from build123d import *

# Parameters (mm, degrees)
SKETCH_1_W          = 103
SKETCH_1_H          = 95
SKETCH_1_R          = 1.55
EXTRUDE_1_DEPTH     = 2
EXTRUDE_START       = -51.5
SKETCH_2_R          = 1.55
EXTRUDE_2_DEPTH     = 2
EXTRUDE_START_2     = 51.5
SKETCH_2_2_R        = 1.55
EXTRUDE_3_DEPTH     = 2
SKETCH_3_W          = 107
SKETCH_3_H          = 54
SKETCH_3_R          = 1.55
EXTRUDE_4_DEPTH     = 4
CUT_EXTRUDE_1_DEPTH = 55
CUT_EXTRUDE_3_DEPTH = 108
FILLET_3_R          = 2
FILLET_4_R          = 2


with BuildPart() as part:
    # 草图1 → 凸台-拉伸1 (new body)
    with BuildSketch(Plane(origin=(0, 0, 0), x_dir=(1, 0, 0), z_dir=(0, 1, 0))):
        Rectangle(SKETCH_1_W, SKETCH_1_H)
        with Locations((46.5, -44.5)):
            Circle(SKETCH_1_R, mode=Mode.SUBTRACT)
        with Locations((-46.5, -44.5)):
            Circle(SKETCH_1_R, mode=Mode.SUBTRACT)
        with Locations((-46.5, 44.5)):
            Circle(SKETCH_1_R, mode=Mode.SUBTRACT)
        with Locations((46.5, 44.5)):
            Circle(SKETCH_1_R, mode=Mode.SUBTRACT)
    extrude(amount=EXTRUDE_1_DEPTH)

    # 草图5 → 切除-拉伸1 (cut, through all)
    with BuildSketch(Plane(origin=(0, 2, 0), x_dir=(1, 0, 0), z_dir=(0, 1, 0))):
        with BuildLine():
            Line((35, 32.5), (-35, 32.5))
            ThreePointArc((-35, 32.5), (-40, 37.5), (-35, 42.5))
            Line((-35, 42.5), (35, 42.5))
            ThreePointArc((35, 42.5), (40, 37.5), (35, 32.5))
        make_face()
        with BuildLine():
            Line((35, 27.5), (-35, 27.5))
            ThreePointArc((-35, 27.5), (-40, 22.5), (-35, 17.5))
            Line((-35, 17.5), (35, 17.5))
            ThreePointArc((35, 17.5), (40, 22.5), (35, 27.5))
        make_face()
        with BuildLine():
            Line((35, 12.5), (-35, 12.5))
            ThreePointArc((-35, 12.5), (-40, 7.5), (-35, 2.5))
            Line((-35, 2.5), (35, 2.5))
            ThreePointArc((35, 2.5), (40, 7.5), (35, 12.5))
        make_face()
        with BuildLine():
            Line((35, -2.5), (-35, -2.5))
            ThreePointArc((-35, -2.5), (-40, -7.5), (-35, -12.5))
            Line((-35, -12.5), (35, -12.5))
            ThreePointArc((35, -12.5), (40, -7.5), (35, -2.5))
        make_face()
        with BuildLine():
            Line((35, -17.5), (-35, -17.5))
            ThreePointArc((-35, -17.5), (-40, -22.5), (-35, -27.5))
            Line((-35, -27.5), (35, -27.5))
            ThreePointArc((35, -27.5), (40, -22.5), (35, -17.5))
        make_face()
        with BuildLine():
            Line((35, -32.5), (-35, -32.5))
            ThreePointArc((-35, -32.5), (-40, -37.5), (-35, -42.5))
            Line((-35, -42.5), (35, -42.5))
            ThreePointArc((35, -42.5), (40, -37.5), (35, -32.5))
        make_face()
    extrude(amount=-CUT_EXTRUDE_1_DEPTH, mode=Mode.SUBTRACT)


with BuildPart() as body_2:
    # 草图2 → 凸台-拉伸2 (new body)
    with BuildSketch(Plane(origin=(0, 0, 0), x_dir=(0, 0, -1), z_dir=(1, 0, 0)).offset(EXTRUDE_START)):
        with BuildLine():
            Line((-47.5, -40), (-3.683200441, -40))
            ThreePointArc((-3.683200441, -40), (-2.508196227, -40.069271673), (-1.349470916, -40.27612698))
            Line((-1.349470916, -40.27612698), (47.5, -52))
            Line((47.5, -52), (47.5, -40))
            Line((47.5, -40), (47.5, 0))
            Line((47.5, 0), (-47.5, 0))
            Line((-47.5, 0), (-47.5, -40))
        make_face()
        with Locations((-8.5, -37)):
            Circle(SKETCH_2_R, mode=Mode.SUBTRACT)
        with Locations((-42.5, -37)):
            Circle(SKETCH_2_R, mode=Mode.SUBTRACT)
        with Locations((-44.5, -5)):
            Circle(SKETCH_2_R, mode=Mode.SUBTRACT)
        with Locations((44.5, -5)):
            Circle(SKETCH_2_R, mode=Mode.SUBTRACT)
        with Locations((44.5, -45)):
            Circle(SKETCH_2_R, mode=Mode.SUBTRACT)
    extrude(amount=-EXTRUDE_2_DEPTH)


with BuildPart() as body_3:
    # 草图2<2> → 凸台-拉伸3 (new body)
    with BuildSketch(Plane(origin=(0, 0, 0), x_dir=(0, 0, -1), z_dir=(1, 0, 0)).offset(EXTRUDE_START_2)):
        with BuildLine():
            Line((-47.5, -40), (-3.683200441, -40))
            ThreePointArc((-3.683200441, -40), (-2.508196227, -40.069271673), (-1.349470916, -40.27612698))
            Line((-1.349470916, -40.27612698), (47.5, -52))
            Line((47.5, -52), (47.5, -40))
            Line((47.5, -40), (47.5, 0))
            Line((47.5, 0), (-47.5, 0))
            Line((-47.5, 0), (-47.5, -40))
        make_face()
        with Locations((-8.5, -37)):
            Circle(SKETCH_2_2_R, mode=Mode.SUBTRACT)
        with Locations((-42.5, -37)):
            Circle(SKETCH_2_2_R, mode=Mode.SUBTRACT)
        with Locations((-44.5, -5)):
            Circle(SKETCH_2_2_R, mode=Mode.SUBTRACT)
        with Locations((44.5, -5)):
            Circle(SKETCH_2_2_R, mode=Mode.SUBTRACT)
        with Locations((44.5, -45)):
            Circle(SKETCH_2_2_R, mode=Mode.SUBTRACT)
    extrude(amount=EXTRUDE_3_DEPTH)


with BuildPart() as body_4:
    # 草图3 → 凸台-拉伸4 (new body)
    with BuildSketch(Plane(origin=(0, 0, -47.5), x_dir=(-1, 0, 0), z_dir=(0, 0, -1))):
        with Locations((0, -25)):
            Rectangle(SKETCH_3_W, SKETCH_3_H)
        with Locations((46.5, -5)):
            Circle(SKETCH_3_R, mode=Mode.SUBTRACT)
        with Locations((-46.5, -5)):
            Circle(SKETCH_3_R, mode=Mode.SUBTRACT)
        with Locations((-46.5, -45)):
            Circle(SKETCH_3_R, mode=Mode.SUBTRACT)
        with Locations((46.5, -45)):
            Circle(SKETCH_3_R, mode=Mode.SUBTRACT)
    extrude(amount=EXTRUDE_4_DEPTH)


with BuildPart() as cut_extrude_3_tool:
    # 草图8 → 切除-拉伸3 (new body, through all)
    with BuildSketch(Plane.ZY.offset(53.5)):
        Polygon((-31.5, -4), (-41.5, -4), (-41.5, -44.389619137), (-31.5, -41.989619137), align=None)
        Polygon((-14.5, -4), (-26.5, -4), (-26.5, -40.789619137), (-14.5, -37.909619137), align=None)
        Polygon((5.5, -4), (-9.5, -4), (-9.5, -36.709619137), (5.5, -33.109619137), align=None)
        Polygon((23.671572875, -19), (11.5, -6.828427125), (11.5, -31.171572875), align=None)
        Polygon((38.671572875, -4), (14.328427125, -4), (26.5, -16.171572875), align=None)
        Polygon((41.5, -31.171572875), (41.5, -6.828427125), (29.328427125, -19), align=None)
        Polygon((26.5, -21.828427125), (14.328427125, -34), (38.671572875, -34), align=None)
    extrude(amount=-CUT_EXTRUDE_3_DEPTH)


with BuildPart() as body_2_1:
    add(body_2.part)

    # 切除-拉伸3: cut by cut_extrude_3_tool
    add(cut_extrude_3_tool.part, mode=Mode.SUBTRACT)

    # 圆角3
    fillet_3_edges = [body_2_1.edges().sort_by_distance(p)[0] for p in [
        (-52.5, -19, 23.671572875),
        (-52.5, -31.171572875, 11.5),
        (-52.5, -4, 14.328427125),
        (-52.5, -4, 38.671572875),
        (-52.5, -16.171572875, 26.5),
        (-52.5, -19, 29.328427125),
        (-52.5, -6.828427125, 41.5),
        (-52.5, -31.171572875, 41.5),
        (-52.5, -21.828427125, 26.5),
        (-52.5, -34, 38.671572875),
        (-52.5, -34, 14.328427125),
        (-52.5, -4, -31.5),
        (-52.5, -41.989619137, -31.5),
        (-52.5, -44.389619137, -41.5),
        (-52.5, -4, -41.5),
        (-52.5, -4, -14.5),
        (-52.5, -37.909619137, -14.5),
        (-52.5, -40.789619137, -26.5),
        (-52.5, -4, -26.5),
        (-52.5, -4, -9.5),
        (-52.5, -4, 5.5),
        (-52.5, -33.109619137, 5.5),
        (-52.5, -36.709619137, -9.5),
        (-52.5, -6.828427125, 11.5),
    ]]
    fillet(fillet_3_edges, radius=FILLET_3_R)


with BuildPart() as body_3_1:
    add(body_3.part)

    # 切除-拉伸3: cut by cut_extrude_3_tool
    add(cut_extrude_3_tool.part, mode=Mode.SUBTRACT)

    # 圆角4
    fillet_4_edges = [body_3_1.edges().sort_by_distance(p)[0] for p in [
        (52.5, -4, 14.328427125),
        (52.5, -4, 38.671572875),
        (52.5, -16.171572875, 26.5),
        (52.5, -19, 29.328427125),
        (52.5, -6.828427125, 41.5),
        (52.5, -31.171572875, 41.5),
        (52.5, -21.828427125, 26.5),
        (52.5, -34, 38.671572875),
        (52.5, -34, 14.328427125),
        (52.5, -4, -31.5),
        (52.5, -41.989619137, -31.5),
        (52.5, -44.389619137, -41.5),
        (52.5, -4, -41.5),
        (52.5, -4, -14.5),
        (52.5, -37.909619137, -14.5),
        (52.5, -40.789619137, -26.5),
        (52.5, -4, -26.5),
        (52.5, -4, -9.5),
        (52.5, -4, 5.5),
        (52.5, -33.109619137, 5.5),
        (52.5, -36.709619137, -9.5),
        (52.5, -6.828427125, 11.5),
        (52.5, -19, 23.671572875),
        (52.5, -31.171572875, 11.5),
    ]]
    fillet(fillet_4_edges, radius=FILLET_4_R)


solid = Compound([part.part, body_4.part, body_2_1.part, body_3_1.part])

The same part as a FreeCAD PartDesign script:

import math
import FreeCAD as App
import Part
import Sketcher


def edges_at(feature, points):
    """Names of the edges that pass closest to the given points."""
    edges = feature.Shape.Edges
    near = lambda p: min(range(len(edges)), key=lambda i: edges[i].distToShape(Part.Vertex(*p))[0])
    return sorted({f"Edge{near(p) + 1}" for p in points})

doc = App.newDocument("Part")
body = doc.addObject("PartDesign::Body", "Body")

sketch1 = body.newObject("Sketcher::SketchObject", "Sketch")
sketch1.AttachmentSupport = (doc.getObject("XZ_Plane"), [""])
sketch1.MapMode = "FlatFace"
sketch1.addGeometry(Part.LineSegment(App.Vector(-51.5, -47.5, 0), App.Vector(-51.5, 47.5, 0)), False)
sketch1.addGeometry(Part.LineSegment(App.Vector(-51.5, 47.5, 0), App.Vector(51.5, 47.5, 0)), False)
sketch1.addGeometry(Part.LineSegment(App.Vector(51.5, 47.5, 0), App.Vector(51.5, -47.5, 0)), False)
sketch1.addGeometry(Part.LineSegment(App.Vector(51.5, -47.5, 0), App.Vector(-51.5, -47.5, 0)), False)
sketch1.addGeometry(Part.Circle(App.Vector(-46.5, 44.5, 0), App.Vector(0, 0, 1), 1.6), False)
sketch1.addGeometry(Part.Circle(App.Vector(46.5, 44.5, 0), App.Vector(0, 0, 1), 1.6), False)
sketch1.addGeometry(Part.Circle(App.Vector(-46.5, -44.5, 0), App.Vector(0, 0, 1), 1.6), False)
sketch1.addGeometry(Part.Circle(App.Vector(46.5, -44.5, 0), App.Vector(0, 0, 1), 1.6), False)
sketch1.addConstraint(Sketcher.Constraint("Coincident", 0, 2, 1, 1))
sketch1.addConstraint(Sketcher.Constraint("Coincident", 1, 2, 2, 1))
sketch1.addConstraint(Sketcher.Constraint("Coincident", 2, 2, 3, 1))
sketch1.addConstraint(Sketcher.Constraint("Coincident", 3, 2, 0, 1))
sketch1.addConstraint(Sketcher.Constraint("Vertical", 0))
sketch1.addConstraint(Sketcher.Constraint("Horizontal", 1))
sketch1.addConstraint(Sketcher.Constraint("Vertical", 2))
sketch1.addConstraint(Sketcher.Constraint("Horizontal", 3))
sketch1.addConstraint(Sketcher.Constraint("Equal", 4, 5))
sketch1.addConstraint(Sketcher.Constraint("Equal", 5, 6))
sketch1.addConstraint(Sketcher.Constraint("Equal", 6, 7))
sketch1.addConstraint(Sketcher.Constraint("Symmetric", 5, 3, 6, 3, -1, 1))
sketch1.addConstraint(Sketcher.Constraint("Symmetric", 4, 3, 7, 3, -1, 1))
sketch1.addConstraint(Sketcher.Constraint("Symmetric", 0, 2, 2, 2, -1, 1))
sketch1.addConstraint(Sketcher.Constraint("Symmetric", 4, 3, 5, 3, -2))
sketch1.addConstraint(Sketcher.Constraint("Diameter", 4, 3.1))
sketch1.addConstraint(Sketcher.Constraint("DistanceX", 1, 1, 1, 2, 103.0))
sketch1.addConstraint(Sketcher.Constraint("DistanceY", 0, 1, 0, 2, 95.0))
sketch1.addConstraint(Sketcher.Constraint("DistanceX", 4, 3, 5, 3, 93.0))
sketch1.addConstraint(Sketcher.Constraint("DistanceY", 6, 3, 4, 3, 89.0))
pad1 = body.newObject("PartDesign::Pad", "Pad")
pad1.Profile = sketch1
pad1.Length = 2
pad1.Reversed = True

sketch2 = body.newObject("Sketcher::SketchObject", "Sketch001")
sketch2.AttachmentSupport = (doc.getObject("XZ_Plane"), [""])
sketch2.MapMode = "FlatFace"
sketch2.AttachmentOffset = App.Placement(App.Vector(0, 0, -2), App.Rotation())
sketch2.addGeometry(Part.LineSegment(App.Vector(-35, -32, 0), App.Vector(35, -32, 0)), False)
sketch2.addGeometry(Part.ArcOfCircle(Part.Circle(App.Vector(35, -38, 0), App.Vector(0, 0, 1), 5), math.radians(-90), math.radians(90)), False)
sketch2.addGeometry(Part.LineSegment(App.Vector(35, -42, 0), App.Vector(-35, -42, 0)), False)
sketch2.addGeometry(Part.ArcOfCircle(Part.Circle(App.Vector(-35, -38, 0), App.Vector(0, 0, 1), 5), math.radians(90), math.radians(270)), False)
sketch2.addGeometry(Part.LineSegment(App.Vector(35, -28, 0), App.Vector(-35, -28, 0)), False)
sketch2.addGeometry(Part.ArcOfCircle(Part.Circle(App.Vector(-35, -22, 0), App.Vector(0, 0, 1), 5), math.radians(90), math.radians(270)), False)
sketch2.addGeometry(Part.LineSegment(App.Vector(-35, -18, 0), App.Vector(35, -18, 0)), False)
sketch2.addGeometry(Part.ArcOfCircle(Part.Circle(App.Vector(35, -22, 0), App.Vector(0, 0, 1), 5), math.radians(-90), math.radians(90)), False)
sketch2.addGeometry(Part.LineSegment(App.Vector(35, -12, 0), App.Vector(-35, -12, 0)), False)
sketch2.addGeometry(Part.ArcOfCircle(Part.Circle(App.Vector(-35, -8, 0), App.Vector(0, 0, 1), 5), math.radians(90), math.radians(270)), False)
sketch2.addGeometry(Part.LineSegment(App.Vector(-35, -2, 0), App.Vector(35, -2, 0)), False)
sketch2.addGeometry(Part.ArcOfCircle(Part.Circle(App.Vector(35, -8, 0), App.Vector(0, 0, 1), 5), math.radians(-90), math.radians(90)), False)
sketch2.addGeometry(Part.LineSegment(App.Vector(35, 2, 0), App.Vector(-35, 2, 0)), False)
sketch2.addGeometry(Part.ArcOfCircle(Part.Circle(App.Vector(-35, 8, 0), App.Vector(0, 0, 1), 5), math.radians(90), math.radians(270)), False)
sketch2.addGeometry(Part.LineSegment(App.Vector(-35, 12, 0), App.Vector(35, 12, 0)), False)
sketch2.addGeometry(Part.ArcOfCircle(Part.Circle(App.Vector(35, 8, 0), App.Vector(0, 0, 1), 5), math.radians(-90), math.radians(90)), False)
sketch2.addGeometry(Part.LineSegment(App.Vector(35, 18, 0), App.Vector(-35, 18, 0)), False)
sketch2.addGeometry(Part.ArcOfCircle(Part.Circle(App.Vector(-35, 22, 0), App.Vector(0, 0, 1), 5), math.radians(90), math.radians(270)), False)
sketch2.addGeometry(Part.LineSegment(App.Vector(-35, 28, 0), App.Vector(35, 28, 0)), False)
sketch2.addGeometry(Part.ArcOfCircle(Part.Circle(App.Vector(35, 22, 0), App.Vector(0, 0, 1), 5), math.radians(-90), math.radians(90)), False)
sketch2.addGeometry(Part.LineSegment(App.Vector(35, 32, 0), App.Vector(-35, 32, 0)), False)
sketch2.addGeometry(Part.ArcOfCircle(Part.Circle(App.Vector(-35, 38, 0), App.Vector(0, 0, 1), 5), math.radians(90), math.radians(270)), False)
sketch2.addGeometry(Part.LineSegment(App.Vector(-35, 42, 0), App.Vector(35, 42, 0)), False)
sketch2.addGeometry(Part.ArcOfCircle(Part.Circle(App.Vector(35, 38, 0), App.Vector(0, 0, 1), 5), math.radians(-90), math.radians(90)), False)
sketch2.addConstraint(Sketcher.Constraint("Tangent", 0, 2, 1, 2))
sketch2.addConstraint(Sketcher.Constraint("Tangent", 1, 1, 2, 1))
sketch2.addConstraint(Sketcher.Constraint("Tangent", 2, 2, 3, 2))
sketch2.addConstraint(Sketcher.Constraint("Tangent", 3, 1, 0, 1))
sketch2.addConstraint(Sketcher.Constraint("Tangent", 4, 2, 5, 2))
sketch2.addConstraint(Sketcher.Constraint("Tangent", 5, 1, 6, 1))
sketch2.addConstraint(Sketcher.Constraint("Tangent", 6, 2, 7, 2))
sketch2.addConstraint(Sketcher.Constraint("Tangent", 7, 1, 4, 1))
sketch2.addConstraint(Sketcher.Constraint("Tangent", 8, 2, 9, 2))
sketch2.addConstraint(Sketcher.Constraint("Tangent", 9, 1, 10, 1))
sketch2.addConstraint(Sketcher.Constraint("Tangent", 10, 2, 11, 2))
sketch2.addConstraint(Sketcher.Constraint("Tangent", 11, 1, 8, 1))
sketch2.addConstraint(Sketcher.Constraint("Tangent", 12, 2, 13, 2))
sketch2.addConstraint(Sketcher.Constraint("Tangent", 13, 1, 14, 1))
sketch2.addConstraint(Sketcher.Constraint("Tangent", 14, 2, 15, 2))
sketch2.addConstraint(Sketcher.Constraint("Tangent", 15, 1, 12, 1))
sketch2.addConstraint(Sketcher.Constraint("Tangent", 16, 2, 17, 2))
sketch2.addConstraint(Sketcher.Constraint("Tangent", 17, 1, 18, 1))
sketch2.addConstraint(Sketcher.Constraint("Tangent", 18, 2, 19, 2))
sketch2.addConstraint(Sketcher.Constraint("Tangent", 19, 1, 16, 1))
sketch2.addConstraint(Sketcher.Constraint("Tangent", 20, 2, 21, 2))
sketch2.addConstraint(Sketcher.Constraint("Tangent", 21, 1, 22, 1))
sketch2.addConstraint(Sketcher.Constraint("Tangent", 22, 2, 23, 2))
sketch2.addConstraint(Sketcher.Constraint("Tangent", 23, 1, 20, 1))
sketch2.addConstraint(Sketcher.Constraint("Horizontal", 0))
sketch2.addConstraint(Sketcher.Constraint("Horizontal", 2))
sketch2.addConstraint(Sketcher.Constraint("Horizontal", 4))
sketch2.addConstraint(Sketcher.Constraint("Horizontal", 6))
sketch2.addConstraint(Sketcher.Constraint("Horizontal", 8))
sketch2.addConstraint(Sketcher.Constraint("Horizontal", 10))
sketch2.addConstraint(Sketcher.Constraint("Horizontal", 12))
sketch2.addConstraint(Sketcher.Constraint("Horizontal", 14))
sketch2.addConstraint(Sketcher.Constraint("Horizontal", 16))
sketch2.addConstraint(Sketcher.Constraint("Horizontal", 18))
sketch2.addConstraint(Sketcher.Constraint("Horizontal", 20))
sketch2.addConstraint(Sketcher.Constraint("Horizontal", 22))
sketch2.addConstraint(Sketcher.Constraint("Equal", 3, 5))
sketch2.addConstraint(Sketcher.Constraint("Equal", 7, 9))
sketch2.addConstraint(Sketcher.Constraint("Equal", 11, 13))
sketch2.addConstraint(Sketcher.Constraint("Equal", 15, 17))
sketch2.addConstraint(Sketcher.Constraint("Equal", 19, 21))
sketch2.addConstraint(Sketcher.Constraint("Symmetric", 11, 3, 13, 3, -1, 1))
sketch2.addConstraint(Sketcher.Constraint("Symmetric", 7, 3, 17, 3, -1, 1))
sketch2.addConstraint(Sketcher.Constraint("Symmetric", 1, 3, 21, 3, -1, 1))
sketch2.addConstraint(Sketcher.Constraint("Vertical", 3, 3, 5, 3))
sketch2.addConstraint(Sketcher.Constraint("Vertical", 1, 3, 7, 3))
sketch2.addConstraint(Sketcher.Constraint("Vertical", 5, 3, 9, 3))
sketch2.addConstraint(Sketcher.Constraint("Vertical", 7, 3, 11, 3))
sketch2.addConstraint(Sketcher.Constraint("Vertical", 9, 3, 13, 3))
sketch2.addConstraint(Sketcher.Constraint("Vertical", 11, 3, 15, 3))
sketch2.addConstraint(Sketcher.Constraint("Vertical", 15, 3, 19, 3))
sketch2.addConstraint(Sketcher.Constraint("Vertical", 19, 3, 23, 3))
sketch2.addConstraint(Sketcher.Constraint("Radius", 1, 5.0))
sketch2.addConstraint(Sketcher.Constraint("DistanceX", 0, 1, 0, 2, 70.0))
sketch2.addConstraint(Sketcher.Constraint("DistanceY", 3, 3, 5, 3, 15.0))
sketch2.addConstraint(Sketcher.Constraint("DistanceY", 5, 3, 9, 3, 15.0))
sketch2.addConstraint(Sketcher.Constraint("DistanceY", 9, 3, 13, 3, 15.0))
pocket1 = body.newObject("PartDesign::Pocket", "Pocket")
pocket1.Profile = sketch2
pocket1.Type = "ThroughAll"
pocket1.Reversed = True
body2 = doc.addObject("PartDesign::Body", "Body001")

sketch3 = body2.newObject("Sketcher::SketchObject", "Sketch002")
sketch3.AttachmentSupport = (doc.getObject("YZ_Plane001"), [""])
sketch3.MapMode = "FlatFace"
sketch3.AttachmentOffset = App.Placement(App.Vector(0, 0, -51.5), App.Rotation())
sketch3.addGeometry(Part.LineSegment(App.Vector(-40, 47.5, 0), App.Vector(-40, 3.7, 0)), False)
sketch3.addGeometry(Part.ArcOfCircle(Part.Circle(App.Vector(-50, 3.7, 0), App.Vector(0, 0, 1), 10), math.radians(-13.5), math.radians(0)), False)
sketch3.addGeometry(Part.LineSegment(App.Vector(-40.3, 1.3, 0), App.Vector(-52, -47.5, 0)), False)
sketch3.addGeometry(Part.LineSegment(App.Vector(-52, -47.5, 0), App.Vector(0, -47.5, 0)), False)
sketch3.addGeometry(Part.LineSegment(App.Vector(0, -47.5, 0), App.Vector(0, 47.5, 0)), False)
sketch3.addGeometry(Part.LineSegment(App.Vector(0, 47.5, 0), App.Vector(-40, 47.5, 0)), False)
sketch3.addGeometry(Part.Circle(App.Vector(-37, 42.5, 0), App.Vector(0, 0, 1), 1.6), False)
sketch3.addGeometry(Part.Circle(App.Vector(-37, 8.5, 0), App.Vector(0, 0, 1), 1.6), False)
sketch3.addGeometry(Part.Circle(App.Vector(-45, -44.5, 0), App.Vector(0, 0, 1), 1.6), False)
sketch3.addGeometry(Part.Circle(App.Vector(-5, 44.5, 0), App.Vector(0, 0, 1), 1.6), False)
sketch3.addGeometry(Part.Circle(App.Vector(-5, -44.5, 0), App.Vector(0, 0, 1), 1.6), False)
sketch3.addConstraint(Sketcher.Constraint("Tangent", 0, 2, 1, 2))
sketch3.addConstraint(Sketcher.Constraint("Tangent", 1, 1, 2, 1))
sketch3.addConstraint(Sketcher.Constraint("Coincident", 2, 2, 3, 1))
sketch3.addConstraint(Sketcher.Constraint("Coincident", 3, 2, 4, 1))
sketch3.addConstraint(Sketcher.Constraint("Coincident", 4, 2, 5, 1))
sketch3.addConstraint(Sketcher.Constraint("Coincident", 5, 2, 0, 1))
sketch3.addConstraint(Sketcher.Constraint("Vertical", 0))
sketch3.addConstraint(Sketcher.Constraint("Horizontal", 3))
sketch3.addConstraint(Sketcher.Constraint("Vertical", 4))
sketch3.addConstraint(Sketcher.Constraint("Horizontal", 5))
sketch3.addConstraint(Sketcher.Constraint("Equal", 6, 7))
sketch3.addConstraint(Sketcher.Constraint("Equal", 7, 8))
sketch3.addConstraint(Sketcher.Constraint("Equal", 8, 9))
sketch3.addConstraint(Sketcher.Constraint("Equal", 9, 10))
sketch3.addConstraint(Sketcher.Constraint("Symmetric", 3, 2, 4, 2, -1, 1))
sketch3.addConstraint(Sketcher.Constraint("Symmetric", 9, 3, 10, 3, -1))
sketch3.addConstraint(Sketcher.Constraint("Horizontal", 8, 3, 10, 3))
sketch3.addConstraint(Sketcher.Constraint("Vertical", 6, 3, 7, 3))
sketch3.addConstraint(Sketcher.Constraint("Radius", 1, 10.0))
sketch3.addConstraint(Sketcher.Constraint("Diameter", 6, 3.1))
sketch3.addConstraint(Sketcher.Constraint("DistanceX", 3, 1, 3, 2, 52.0))
sketch3.addConstraint(Sketcher.Constraint("DistanceX", 5, 2, 5, 1, 40.0))
sketch3.addConstraint(Sketcher.Constraint("DistanceY", 4, 1, 4, 2, 95.0))
sketch3.addConstraint(Sketcher.Constraint("DistanceX", 6, 3, -1, 1, 37.0))
sketch3.addConstraint(Sketcher.Constraint("DistanceX", 8, 3, -1, 1, 45.0))
sketch3.addConstraint(Sketcher.Constraint("DistanceX", 9, 3, -1, 1, 5.0))
sketch3.addConstraint(Sketcher.Constraint("DistanceY", 7, 3, 6, 3, 34.0))
sketch3.addConstraint(Sketcher.Constraint("DistanceY", 8, 3, 7, 3, 53.0))
sketch3.addConstraint(Sketcher.Constraint("DistanceY", 6, 3, 9, 3, 2.0))
sketch3.addConstraint(Sketcher.Constraint("DistanceY", 0, 2, 0, 1, 43.8168))
pad2 = body2.newObject("PartDesign::Pad", "Pad001")
pad2.Profile = sketch3
pad2.Length = 2
pad2.Reversed = True
body3 = doc.addObject("PartDesign::Body", "Body002")

sketch4 = body3.newObject("Sketcher::SketchObject", "Sketch003")
sketch4.AttachmentSupport = (doc.getObject("YZ_Plane002"), [""])
sketch4.MapMode = "FlatFace"
sketch4.AttachmentOffset = App.Placement(App.Vector(0, 0, 51.5), App.Rotation())
sketch4.addGeometry(Part.LineSegment(App.Vector(-40, 47.5, 0), App.Vector(-40, 3.7, 0)), False)
sketch4.addGeometry(Part.ArcOfCircle(Part.Circle(App.Vector(-50, 3.7, 0), App.Vector(0, 0, 1), 10), math.radians(-13.5), math.radians(0)), False)
sketch4.addGeometry(Part.LineSegment(App.Vector(-40.3, 1.3, 0), App.Vector(-52, -47.5, 0)), False)
sketch4.addGeometry(Part.LineSegment(App.Vector(-52, -47.5, 0), App.Vector(0, -47.5, 0)), False)
sketch4.addGeometry(Part.LineSegment(App.Vector(0, -47.5, 0), App.Vector(0, 47.5, 0)), False)
sketch4.addGeometry(Part.LineSegment(App.Vector(0, 47.5, 0), App.Vector(-40, 47.5, 0)), False)
sketch4.addGeometry(Part.Circle(App.Vector(-37, 42.5, 0), App.Vector(0, 0, 1), 1.6), False)
sketch4.addGeometry(Part.Circle(App.Vector(-37, 8.5, 0), App.Vector(0, 0, 1), 1.6), False)
sketch4.addGeometry(Part.Circle(App.Vector(-45, -44.5, 0), App.Vector(0, 0, 1), 1.6), False)
sketch4.addGeometry(Part.Circle(App.Vector(-5, 44.5, 0), App.Vector(0, 0, 1), 1.6), False)
sketch4.addGeometry(Part.Circle(App.Vector(-5, -44.5, 0), App.Vector(0, 0, 1), 1.6), False)
sketch4.addConstraint(Sketcher.Constraint("Tangent", 0, 2, 1, 2))
sketch4.addConstraint(Sketcher.Constraint("Tangent", 1, 1, 2, 1))
sketch4.addConstraint(Sketcher.Constraint("Coincident", 2, 2, 3, 1))
sketch4.addConstraint(Sketcher.Constraint("Coincident", 3, 2, 4, 1))
sketch4.addConstraint(Sketcher.Constraint("Coincident", 4, 2, 5, 1))
sketch4.addConstraint(Sketcher.Constraint("Coincident", 5, 2, 0, 1))
sketch4.addConstraint(Sketcher.Constraint("Vertical", 0))
sketch4.addConstraint(Sketcher.Constraint("Horizontal", 3))
sketch4.addConstraint(Sketcher.Constraint("Vertical", 4))
sketch4.addConstraint(Sketcher.Constraint("Horizontal", 5))
sketch4.addConstraint(Sketcher.Constraint("Equal", 6, 7))
sketch4.addConstraint(Sketcher.Constraint("Equal", 7, 8))
sketch4.addConstraint(Sketcher.Constraint("Equal", 8, 9))
sketch4.addConstraint(Sketcher.Constraint("Equal", 9, 10))
sketch4.addConstraint(Sketcher.Constraint("Symmetric", 3, 2, 4, 2, -1, 1))
sketch4.addConstraint(Sketcher.Constraint("Symmetric", 9, 3, 10, 3, -1))
sketch4.addConstraint(Sketcher.Constraint("Horizontal", 8, 3, 10, 3))
sketch4.addConstraint(Sketcher.Constraint("Vertical", 6, 3, 7, 3))
sketch4.addConstraint(Sketcher.Constraint("Radius", 1, 10.0))
sketch4.addConstraint(Sketcher.Constraint("Diameter", 6, 3.1))
sketch4.addConstraint(Sketcher.Constraint("DistanceX", 3, 1, 3, 2, 52.0))
sketch4.addConstraint(Sketcher.Constraint("DistanceX", 5, 2, 5, 1, 40.0))
sketch4.addConstraint(Sketcher.Constraint("DistanceY", 4, 1, 4, 2, 95.0))
sketch4.addConstraint(Sketcher.Constraint("DistanceX", 6, 3, -1, 1, 37.0))
sketch4.addConstraint(Sketcher.Constraint("DistanceX", 8, 3, -1, 1, 45.0))
sketch4.addConstraint(Sketcher.Constraint("DistanceX", 9, 3, -1, 1, 5.0))
sketch4.addConstraint(Sketcher.Constraint("DistanceY", 7, 3, 6, 3, 34.0))
sketch4.addConstraint(Sketcher.Constraint("DistanceY", 8, 3, 7, 3, 53.0))
sketch4.addConstraint(Sketcher.Constraint("DistanceY", 6, 3, 9, 3, 2.0))
sketch4.addConstraint(Sketcher.Constraint("DistanceY", 0, 2, 0, 1, 43.8168))
pad3 = body3.newObject("PartDesign::Pad", "Pad002")
pad3.Profile = sketch4
pad3.Length = 2
body4 = doc.addObject("PartDesign::Body", "Body003")

sketch5 = body4.newObject("Sketcher::SketchObject", "Sketch004")
sketch5.AttachmentSupport = (doc.getObject("XY_Plane003"), [""])
sketch5.MapMode = "FlatFace"
sketch5.AttachmentOffset = App.Placement(App.Vector(0, 0, -47.5), App.Rotation())
sketch5.addGeometry(Part.LineSegment(App.Vector(53.5, 2, 0), App.Vector(53.5, -52, 0)), False)
sketch5.addGeometry(Part.LineSegment(App.Vector(53.5, -52, 0), App.Vector(-53.5, -52, 0)), False)
sketch5.addGeometry(Part.LineSegment(App.Vector(-53.5, -52, 0), App.Vector(-53.5, 2, 0)), False)
sketch5.addGeometry(Part.LineSegment(App.Vector(-53.5, 2, 0), App.Vector(53.5, 2, 0)), False)
sketch5.addGeometry(Part.Circle(App.Vector(46.5, -45, 0), App.Vector(0, 0, 1), 1.6), False)
sketch5.addGeometry(Part.Circle(App.Vector(-46.5, -45, 0), App.Vector(0, 0, 1), 1.6), False)
sketch5.addGeometry(Part.Circle(App.Vector(46.5, -5, 0), App.Vector(0, 0, 1), 1.6), False)
sketch5.addGeometry(Part.Circle(App.Vector(-46.5, -5, 0), App.Vector(0, 0, 1), 1.6), False)
sketch5.addConstraint(Sketcher.Constraint("Coincident", 0, 2, 1, 1))
sketch5.addConstraint(Sketcher.Constraint("Coincident", 1, 2, 2, 1))
sketch5.addConstraint(Sketcher.Constraint("Coincident", 2, 2, 3, 1))
sketch5.addConstraint(Sketcher.Constraint("Coincident", 3, 2, 0, 1))
sketch5.addConstraint(Sketcher.Constraint("Vertical", 0))
sketch5.addConstraint(Sketcher.Constraint("Horizontal", 1))
sketch5.addConstraint(Sketcher.Constraint("Vertical", 2))
sketch5.addConstraint(Sketcher.Constraint("Horizontal", 3))
sketch5.addConstraint(Sketcher.Constraint("Equal", 4, 5))
sketch5.addConstraint(Sketcher.Constraint("Equal", 5, 6))
sketch5.addConstraint(Sketcher.Constraint("Equal", 6, 7))
sketch5.addConstraint(Sketcher.Constraint("Symmetric", 4, 3, 5, 3, -2))
sketch5.addConstraint(Sketcher.Constraint("Symmetric", 6, 3, 7, 3, -2))
sketch5.addConstraint(Sketcher.Constraint("Vertical", 4, 3, 6, 3))
sketch5.addConstraint(Sketcher.Constraint("Diameter", 4, 3.1))
sketch5.addConstraint(Sketcher.Constraint("DistanceX", 1, 2, 1, 1, 107.0))
sketch5.addConstraint(Sketcher.Constraint("DistanceY", 0, 2, 0, 1, 54.0))
sketch5.addConstraint(Sketcher.Constraint("DistanceY", 4, 3, -1, 1, 45.0))
sketch5.addConstraint(Sketcher.Constraint("DistanceY", 6, 3, -1, 1, 5.0))
sketch5.addConstraint(Sketcher.Constraint("DistanceY", 0, 2, -1, 1, 52.0))
sketch5.addConstraint(Sketcher.Constraint("DistanceX", 5, 3, 4, 3, 93.0))
sketch5.addConstraint(Sketcher.Constraint("DistanceX", 4, 3, 0, 2, 7.0))
pad4 = body4.newObject("PartDesign::Pad", "Pad003")
pad4.Profile = sketch5
pad4.Length = 4
pad4.Reversed = True
body5 = doc.addObject("PartDesign::Body", "Body004")
body5.AllowCompound = True

sketch6 = body5.newObject("Sketcher::SketchObject", "Sketch005")
sketch6.AttachmentSupport = (doc.getObject("YZ_Plane004"), [""])
sketch6.MapMode = "FlatFace"
sketch6.AttachmentOffset = App.Placement(App.Vector(0, 0, -53.5), App.Rotation())
sketch6.addGeometry(Part.LineSegment(App.Vector(-4, -32, 0), App.Vector(-4, -42, 0)), False)
sketch6.addGeometry(Part.LineSegment(App.Vector(-4, -42, 0), App.Vector(-44, -42, 0)), False)
sketch6.addGeometry(Part.LineSegment(App.Vector(-44, -42, 0), App.Vector(-42, -32, 0)), False)
sketch6.addGeometry(Part.LineSegment(App.Vector(-42, -32, 0), App.Vector(-4, -32, 0)), False)
sketch6.addGeometry(Part.LineSegment(App.Vector(-4, -14, 0), App.Vector(-4, -26, 0)), False)
sketch6.addGeometry(Part.LineSegment(App.Vector(-4, -26, 0), App.Vector(-41, -26, 0)), False)
sketch6.addGeometry(Part.LineSegment(App.Vector(-41, -26, 0), App.Vector(-38, -14, 0)), False)
sketch6.addGeometry(Part.LineSegment(App.Vector(-38, -14, 0), App.Vector(-4, -14, 0)), False)
sketch6.addGeometry(Part.LineSegment(App.Vector(-4, 6, 0), App.Vector(-4, -10, 0)), False)
sketch6.addGeometry(Part.LineSegment(App.Vector(-4, -10, 0), App.Vector(-37, -10, 0)), False)
sketch6.addGeometry(Part.LineSegment(App.Vector(-37, -10, 0), App.Vector(-33, 6, 0)), False)
sketch6.addGeometry(Part.LineSegment(App.Vector(-33, 6, 0), App.Vector(-4, 6, 0)), False)
sketch6.addGeometry(Part.LineSegment(App.Vector(-19, 24, 0), App.Vector(-7, 12, 0)), False)
sketch6.addGeometry(Part.LineSegment(App.Vector(-7, 12, 0), App.Vector(-31, 12, 0)), False)
sketch6.addGeometry(Part.LineSegment(App.Vector(-31, 12, 0), App.Vector(-19, 24, 0)), False)
sketch6.addGeometry(Part.LineSegment(App.Vector(-4, 39, 0), App.Vector(-4, 14, 0)), False)
sketch6.addGeometry(Part.LineSegment(App.Vector(-4, 14, 0), App.Vector(-16, 26, 0)), False)
sketch6.addGeometry(Part.LineSegment(App.Vector(-16, 26, 0), App.Vector(-4, 39, 0)), False)
sketch6.addGeometry(Part.LineSegment(App.Vector(-31, 42, 0), App.Vector(-7, 42, 0)), False)
sketch6.addGeometry(Part.LineSegment(App.Vector(-7, 42, 0), App.Vector(-19, 29, 0)), False)
sketch6.addGeometry(Part.LineSegment(App.Vector(-19, 29, 0), App.Vector(-31, 42, 0)), False)
sketch6.addGeometry(Part.LineSegment(App.Vector(-22, 26, 0), App.Vector(-34, 14, 0)), False)
sketch6.addGeometry(Part.LineSegment(App.Vector(-34, 14, 0), App.Vector(-34, 39, 0)), False)
sketch6.addGeometry(Part.LineSegment(App.Vector(-34, 39, 0), App.Vector(-22, 26, 0)), False)
sketch6.addConstraint(Sketcher.Constraint("Coincident", 0, 2, 1, 1))
sketch6.addConstraint(Sketcher.Constraint("Coincident", 1, 2, 2, 1))
sketch6.addConstraint(Sketcher.Constraint("Coincident", 2, 2, 3, 1))
sketch6.addConstraint(Sketcher.Constraint("Coincident", 3, 2, 0, 1))
sketch6.addConstraint(Sketcher.Constraint("Coincident", 4, 2, 5, 1))
sketch6.addConstraint(Sketcher.Constraint("Coincident", 5, 2, 6, 1))
sketch6.addConstraint(Sketcher.Constraint("Coincident", 6, 2, 7, 1))
sketch6.addConstraint(Sketcher.Constraint("Coincident", 7, 2, 4, 1))
sketch6.addConstraint(Sketcher.Constraint("Coincident", 8, 2, 9, 1))
sketch6.addConstraint(Sketcher.Constraint("Coincident", 9, 2, 10, 1))
sketch6.addConstraint(Sketcher.Constraint("Coincident", 10, 2, 11, 1))
sketch6.addConstraint(Sketcher.Constraint("Coincident", 11, 2, 8, 1))
sketch6.addConstraint(Sketcher.Constraint("Coincident", 12, 2, 13, 1))
sketch6.addConstraint(Sketcher.Constraint("Coincident", 13, 2, 14, 1))
sketch6.addConstraint(Sketcher.Constraint("Coincident", 14, 2, 12, 1))
sketch6.addConstraint(Sketcher.Constraint("Coincident", 15, 2, 16, 1))
sketch6.addConstraint(Sketcher.Constraint("Coincident", 16, 2, 17, 1))
sketch6.addConstraint(Sketcher.Constraint("Coincident", 17, 2, 15, 1))
sketch6.addConstraint(Sketcher.Constraint("Coincident", 18, 2, 19, 1))
sketch6.addConstraint(Sketcher.Constraint("Coincident", 19, 2, 20, 1))
sketch6.addConstraint(Sketcher.Constraint("Coincident", 20, 2, 18, 1))
sketch6.addConstraint(Sketcher.Constraint("Coincident", 21, 2, 22, 1))
sketch6.addConstraint(Sketcher.Constraint("Coincident", 22, 2, 23, 1))
sketch6.addConstraint(Sketcher.Constraint("Coincident", 23, 2, 21, 1))
sketch6.addConstraint(Sketcher.Constraint("Vertical", 0))
sketch6.addConstraint(Sketcher.Constraint("Horizontal", 1))
sketch6.addConstraint(Sketcher.Constraint("Horizontal", 3))
sketch6.addConstraint(Sketcher.Constraint("Vertical", 4))
sketch6.addConstraint(Sketcher.Constraint("Horizontal", 5))
sketch6.addConstraint(Sketcher.Constraint("Horizontal", 7))
sketch6.addConstraint(Sketcher.Constraint("Vertical", 8))
sketch6.addConstraint(Sketcher.Constraint("Horizontal", 9))
sketch6.addConstraint(Sketcher.Constraint("Horizontal", 11))
sketch6.addConstraint(Sketcher.Constraint("Horizontal", 13))
sketch6.addConstraint(Sketcher.Constraint("Vertical", 15))
sketch6.addConstraint(Sketcher.Constraint("Horizontal", 18))
sketch6.addConstraint(Sketcher.Constraint("Vertical", 22))
sketch6.addConstraint(Sketcher.Constraint("Parallel", 2, 6))
sketch6.addConstraint(Sketcher.Constraint("Parallel", 6, 10))
sketch6.addConstraint(Sketcher.Constraint("Perpendicular", 12, 14))
sketch6.addConstraint(Sketcher.Constraint("Perpendicular", 14, 16))
sketch6.addConstraint(Sketcher.Constraint("Perpendicular", 16, 17))
sketch6.addConstraint(Sketcher.Constraint("Parallel", 17, 19))
sketch6.addConstraint(Sketcher.Constraint("Perpendicular", 19, 20))
sketch6.addConstraint(Sketcher.Constraint("Perpendicular", 20, 21))
sketch6.addConstraint(Sketcher.Constraint("Perpendicular", 21, 23))
sketch6.addConstraint(Sketcher.Constraint("Horizontal", 15, 2, 21, 2))
sketch6.addConstraint(Sketcher.Constraint("Horizontal", 17, 2, 22, 2))
sketch6.addConstraint(Sketcher.Constraint("Horizontal", 16, 2, 23, 2))
sketch6.addConstraint(Sketcher.Constraint("Vertical", 3, 2, 4, 2))
sketch6.addConstraint(Sketcher.Constraint("Vertical", 7, 2, 8, 2))
sketch6.addConstraint(Sketcher.Constraint("Vertical", 11, 2, 15, 2))
sketch6.addConstraint(Sketcher.Constraint("Vertical", 12, 2, 18, 2))
sketch6.addConstraint(Sketcher.Constraint("Vertical", 14, 2, 19, 2))
sketch6.addConstraint(Sketcher.Constraint("Equal", 18, 15))
sketch6.addConstraint(Sketcher.Constraint("DistanceY", 0, 2, 0, 1, 10.0))
sketch6.addConstraint(Sketcher.Constraint("DistanceY", 4, 2, 4, 1, 12.0))
sketch6.addConstraint(Sketcher.Constraint("DistanceY", 8, 2, 8, 1, 15.0))
sketch6.addConstraint(Sketcher.Constraint("DistanceX", 0, 2, -1, 1, 4.0))
sketch6.addConstraint(Sketcher.Constraint("DistanceX", 14, 2, -1, 1, 19.0))
sketch6.addConstraint(Sketcher.Constraint("DistanceX", 21, 2, -1, 1, 34.0))
sketch6.addConstraint(Sketcher.Constraint("DistanceY", 3, 2, 4, 2, 5.0))
sketch6.addConstraint(Sketcher.Constraint("DistanceY", 7, 2, 8, 2, 5.0))
sketch6.addConstraint(Sketcher.Constraint("DistanceY", 11, 2, 12, 2, 6.0))
sketch6.addConstraint(Sketcher.Constraint("DistanceY", 12, 2, 16, 2, 15.0))
sketch6.addConstraint(Sketcher.Constraint("DistanceY", 16, 2, 18, 2, 15.0))
sketch6.addConstraint(Sketcher.Constraint("DistanceY", 0, 2, -1, 1, 41.5))
sketch6.addConstraint(Sketcher.Constraint("DistanceX", 1, 2, 2, 2, 2.4))
sketch6.addConstraint(Sketcher.Constraint("DistanceX", 2, 2, 5, 2, 1.2))
sketch6.addConstraint(Sketcher.Constraint("DistanceX", 6, 2, 9, 2, 1.2))
sketch6.addConstraint(Sketcher.Constraint("DistanceX", 1, 2, 1, 1, 40.389619))
sketch6.addConstraint(Sketcher.Constraint("DistanceX", 13, 2, 13, 1, 24.343146))
pad5 = body5.newObject("PartDesign::Pad", "Pad004")
pad5.Profile = sketch6
pad5.Length = 108
doc.recompute()

body6 = doc.addObject("PartDesign::Body", "Body005")
body6.BaseFeature = body5
boolean = body2.newObject("PartDesign::Boolean", "Boolean")
boolean.Type = "Cut"
boolean.addObjects([body6])
doc.recompute()

fillet = body2.newObject("PartDesign::Fillet", "Fillet")
fillet.Base = (boolean, edges_at(boolean, [
    (-52.5, -19, 23.672),
    (-52.5, -31.172, 11.5),
    (-52.5, -4, 14.328),
    (-52.5, -4, 38.672),
    (-52.5, -16.172, 26.5),
    (-52.5, -19, 29.328),
    (-52.5, -6.828, 41.5),
    (-52.5, -31.172, 41.5),
    (-52.5, -21.828, 26.5),
    (-52.5, -34, 38.672),
    (-52.5, -34, 14.328),
    (-52.5, -4, -31.5),
    (-52.5, -41.99, -31.5),
    (-52.5, -44.39, -41.5),
    (-52.5, -4, -41.5),
    (-52.5, -4, -14.5),
    (-52.5, -37.91, -14.5),
    (-52.5, -40.79, -26.5),
    (-52.5, -4, -26.5),
    (-52.5, -4, -9.5),
    (-52.5, -4, 5.5),
    (-52.5, -33.11, 5.5),
    (-52.5, -36.71, -9.5),
    (-52.5, -6.828, 11.5),
]))
fillet.Radius = 2
doc.recompute()

boolean2 = body3.newObject("PartDesign::Boolean", "Boolean001")
boolean2.Type = "Cut"
boolean2.addObjects([body5])
doc.recompute()

fillet2 = body3.newObject("PartDesign::Fillet", "Fillet001")
fillet2.Base = (boolean2, edges_at(boolean2, [
    (52.5, -4, 14.328),
    (52.5, -4, 38.672),
    (52.5, -16.172, 26.5),
    (52.5, -19, 29.328),
    (52.5, -6.828, 41.5),
    (52.5, -31.172, 41.5),
    (52.5, -21.828, 26.5),
    (52.5, -34, 38.672),
    (52.5, -34, 14.328),
    (52.5, -4, -31.5),
    (52.5, -41.99, -31.5),
    (52.5, -44.39, -41.5),
    (52.5, -4, -41.5),
    (52.5, -4, -14.5),
    (52.5, -37.91, -14.5),
    (52.5, -40.79, -26.5),
    (52.5, -4, -26.5),
    (52.5, -4, -9.5),
    (52.5, -4, 5.5),
    (52.5, -33.11, 5.5),
    (52.5, -36.71, -9.5),
    (52.5, -6.828, 11.5),
    (52.5, -19, 23.672),
    (52.5, -31.172, 11.5),
]))
fillet2.Radius = 2

doc.recompute()
